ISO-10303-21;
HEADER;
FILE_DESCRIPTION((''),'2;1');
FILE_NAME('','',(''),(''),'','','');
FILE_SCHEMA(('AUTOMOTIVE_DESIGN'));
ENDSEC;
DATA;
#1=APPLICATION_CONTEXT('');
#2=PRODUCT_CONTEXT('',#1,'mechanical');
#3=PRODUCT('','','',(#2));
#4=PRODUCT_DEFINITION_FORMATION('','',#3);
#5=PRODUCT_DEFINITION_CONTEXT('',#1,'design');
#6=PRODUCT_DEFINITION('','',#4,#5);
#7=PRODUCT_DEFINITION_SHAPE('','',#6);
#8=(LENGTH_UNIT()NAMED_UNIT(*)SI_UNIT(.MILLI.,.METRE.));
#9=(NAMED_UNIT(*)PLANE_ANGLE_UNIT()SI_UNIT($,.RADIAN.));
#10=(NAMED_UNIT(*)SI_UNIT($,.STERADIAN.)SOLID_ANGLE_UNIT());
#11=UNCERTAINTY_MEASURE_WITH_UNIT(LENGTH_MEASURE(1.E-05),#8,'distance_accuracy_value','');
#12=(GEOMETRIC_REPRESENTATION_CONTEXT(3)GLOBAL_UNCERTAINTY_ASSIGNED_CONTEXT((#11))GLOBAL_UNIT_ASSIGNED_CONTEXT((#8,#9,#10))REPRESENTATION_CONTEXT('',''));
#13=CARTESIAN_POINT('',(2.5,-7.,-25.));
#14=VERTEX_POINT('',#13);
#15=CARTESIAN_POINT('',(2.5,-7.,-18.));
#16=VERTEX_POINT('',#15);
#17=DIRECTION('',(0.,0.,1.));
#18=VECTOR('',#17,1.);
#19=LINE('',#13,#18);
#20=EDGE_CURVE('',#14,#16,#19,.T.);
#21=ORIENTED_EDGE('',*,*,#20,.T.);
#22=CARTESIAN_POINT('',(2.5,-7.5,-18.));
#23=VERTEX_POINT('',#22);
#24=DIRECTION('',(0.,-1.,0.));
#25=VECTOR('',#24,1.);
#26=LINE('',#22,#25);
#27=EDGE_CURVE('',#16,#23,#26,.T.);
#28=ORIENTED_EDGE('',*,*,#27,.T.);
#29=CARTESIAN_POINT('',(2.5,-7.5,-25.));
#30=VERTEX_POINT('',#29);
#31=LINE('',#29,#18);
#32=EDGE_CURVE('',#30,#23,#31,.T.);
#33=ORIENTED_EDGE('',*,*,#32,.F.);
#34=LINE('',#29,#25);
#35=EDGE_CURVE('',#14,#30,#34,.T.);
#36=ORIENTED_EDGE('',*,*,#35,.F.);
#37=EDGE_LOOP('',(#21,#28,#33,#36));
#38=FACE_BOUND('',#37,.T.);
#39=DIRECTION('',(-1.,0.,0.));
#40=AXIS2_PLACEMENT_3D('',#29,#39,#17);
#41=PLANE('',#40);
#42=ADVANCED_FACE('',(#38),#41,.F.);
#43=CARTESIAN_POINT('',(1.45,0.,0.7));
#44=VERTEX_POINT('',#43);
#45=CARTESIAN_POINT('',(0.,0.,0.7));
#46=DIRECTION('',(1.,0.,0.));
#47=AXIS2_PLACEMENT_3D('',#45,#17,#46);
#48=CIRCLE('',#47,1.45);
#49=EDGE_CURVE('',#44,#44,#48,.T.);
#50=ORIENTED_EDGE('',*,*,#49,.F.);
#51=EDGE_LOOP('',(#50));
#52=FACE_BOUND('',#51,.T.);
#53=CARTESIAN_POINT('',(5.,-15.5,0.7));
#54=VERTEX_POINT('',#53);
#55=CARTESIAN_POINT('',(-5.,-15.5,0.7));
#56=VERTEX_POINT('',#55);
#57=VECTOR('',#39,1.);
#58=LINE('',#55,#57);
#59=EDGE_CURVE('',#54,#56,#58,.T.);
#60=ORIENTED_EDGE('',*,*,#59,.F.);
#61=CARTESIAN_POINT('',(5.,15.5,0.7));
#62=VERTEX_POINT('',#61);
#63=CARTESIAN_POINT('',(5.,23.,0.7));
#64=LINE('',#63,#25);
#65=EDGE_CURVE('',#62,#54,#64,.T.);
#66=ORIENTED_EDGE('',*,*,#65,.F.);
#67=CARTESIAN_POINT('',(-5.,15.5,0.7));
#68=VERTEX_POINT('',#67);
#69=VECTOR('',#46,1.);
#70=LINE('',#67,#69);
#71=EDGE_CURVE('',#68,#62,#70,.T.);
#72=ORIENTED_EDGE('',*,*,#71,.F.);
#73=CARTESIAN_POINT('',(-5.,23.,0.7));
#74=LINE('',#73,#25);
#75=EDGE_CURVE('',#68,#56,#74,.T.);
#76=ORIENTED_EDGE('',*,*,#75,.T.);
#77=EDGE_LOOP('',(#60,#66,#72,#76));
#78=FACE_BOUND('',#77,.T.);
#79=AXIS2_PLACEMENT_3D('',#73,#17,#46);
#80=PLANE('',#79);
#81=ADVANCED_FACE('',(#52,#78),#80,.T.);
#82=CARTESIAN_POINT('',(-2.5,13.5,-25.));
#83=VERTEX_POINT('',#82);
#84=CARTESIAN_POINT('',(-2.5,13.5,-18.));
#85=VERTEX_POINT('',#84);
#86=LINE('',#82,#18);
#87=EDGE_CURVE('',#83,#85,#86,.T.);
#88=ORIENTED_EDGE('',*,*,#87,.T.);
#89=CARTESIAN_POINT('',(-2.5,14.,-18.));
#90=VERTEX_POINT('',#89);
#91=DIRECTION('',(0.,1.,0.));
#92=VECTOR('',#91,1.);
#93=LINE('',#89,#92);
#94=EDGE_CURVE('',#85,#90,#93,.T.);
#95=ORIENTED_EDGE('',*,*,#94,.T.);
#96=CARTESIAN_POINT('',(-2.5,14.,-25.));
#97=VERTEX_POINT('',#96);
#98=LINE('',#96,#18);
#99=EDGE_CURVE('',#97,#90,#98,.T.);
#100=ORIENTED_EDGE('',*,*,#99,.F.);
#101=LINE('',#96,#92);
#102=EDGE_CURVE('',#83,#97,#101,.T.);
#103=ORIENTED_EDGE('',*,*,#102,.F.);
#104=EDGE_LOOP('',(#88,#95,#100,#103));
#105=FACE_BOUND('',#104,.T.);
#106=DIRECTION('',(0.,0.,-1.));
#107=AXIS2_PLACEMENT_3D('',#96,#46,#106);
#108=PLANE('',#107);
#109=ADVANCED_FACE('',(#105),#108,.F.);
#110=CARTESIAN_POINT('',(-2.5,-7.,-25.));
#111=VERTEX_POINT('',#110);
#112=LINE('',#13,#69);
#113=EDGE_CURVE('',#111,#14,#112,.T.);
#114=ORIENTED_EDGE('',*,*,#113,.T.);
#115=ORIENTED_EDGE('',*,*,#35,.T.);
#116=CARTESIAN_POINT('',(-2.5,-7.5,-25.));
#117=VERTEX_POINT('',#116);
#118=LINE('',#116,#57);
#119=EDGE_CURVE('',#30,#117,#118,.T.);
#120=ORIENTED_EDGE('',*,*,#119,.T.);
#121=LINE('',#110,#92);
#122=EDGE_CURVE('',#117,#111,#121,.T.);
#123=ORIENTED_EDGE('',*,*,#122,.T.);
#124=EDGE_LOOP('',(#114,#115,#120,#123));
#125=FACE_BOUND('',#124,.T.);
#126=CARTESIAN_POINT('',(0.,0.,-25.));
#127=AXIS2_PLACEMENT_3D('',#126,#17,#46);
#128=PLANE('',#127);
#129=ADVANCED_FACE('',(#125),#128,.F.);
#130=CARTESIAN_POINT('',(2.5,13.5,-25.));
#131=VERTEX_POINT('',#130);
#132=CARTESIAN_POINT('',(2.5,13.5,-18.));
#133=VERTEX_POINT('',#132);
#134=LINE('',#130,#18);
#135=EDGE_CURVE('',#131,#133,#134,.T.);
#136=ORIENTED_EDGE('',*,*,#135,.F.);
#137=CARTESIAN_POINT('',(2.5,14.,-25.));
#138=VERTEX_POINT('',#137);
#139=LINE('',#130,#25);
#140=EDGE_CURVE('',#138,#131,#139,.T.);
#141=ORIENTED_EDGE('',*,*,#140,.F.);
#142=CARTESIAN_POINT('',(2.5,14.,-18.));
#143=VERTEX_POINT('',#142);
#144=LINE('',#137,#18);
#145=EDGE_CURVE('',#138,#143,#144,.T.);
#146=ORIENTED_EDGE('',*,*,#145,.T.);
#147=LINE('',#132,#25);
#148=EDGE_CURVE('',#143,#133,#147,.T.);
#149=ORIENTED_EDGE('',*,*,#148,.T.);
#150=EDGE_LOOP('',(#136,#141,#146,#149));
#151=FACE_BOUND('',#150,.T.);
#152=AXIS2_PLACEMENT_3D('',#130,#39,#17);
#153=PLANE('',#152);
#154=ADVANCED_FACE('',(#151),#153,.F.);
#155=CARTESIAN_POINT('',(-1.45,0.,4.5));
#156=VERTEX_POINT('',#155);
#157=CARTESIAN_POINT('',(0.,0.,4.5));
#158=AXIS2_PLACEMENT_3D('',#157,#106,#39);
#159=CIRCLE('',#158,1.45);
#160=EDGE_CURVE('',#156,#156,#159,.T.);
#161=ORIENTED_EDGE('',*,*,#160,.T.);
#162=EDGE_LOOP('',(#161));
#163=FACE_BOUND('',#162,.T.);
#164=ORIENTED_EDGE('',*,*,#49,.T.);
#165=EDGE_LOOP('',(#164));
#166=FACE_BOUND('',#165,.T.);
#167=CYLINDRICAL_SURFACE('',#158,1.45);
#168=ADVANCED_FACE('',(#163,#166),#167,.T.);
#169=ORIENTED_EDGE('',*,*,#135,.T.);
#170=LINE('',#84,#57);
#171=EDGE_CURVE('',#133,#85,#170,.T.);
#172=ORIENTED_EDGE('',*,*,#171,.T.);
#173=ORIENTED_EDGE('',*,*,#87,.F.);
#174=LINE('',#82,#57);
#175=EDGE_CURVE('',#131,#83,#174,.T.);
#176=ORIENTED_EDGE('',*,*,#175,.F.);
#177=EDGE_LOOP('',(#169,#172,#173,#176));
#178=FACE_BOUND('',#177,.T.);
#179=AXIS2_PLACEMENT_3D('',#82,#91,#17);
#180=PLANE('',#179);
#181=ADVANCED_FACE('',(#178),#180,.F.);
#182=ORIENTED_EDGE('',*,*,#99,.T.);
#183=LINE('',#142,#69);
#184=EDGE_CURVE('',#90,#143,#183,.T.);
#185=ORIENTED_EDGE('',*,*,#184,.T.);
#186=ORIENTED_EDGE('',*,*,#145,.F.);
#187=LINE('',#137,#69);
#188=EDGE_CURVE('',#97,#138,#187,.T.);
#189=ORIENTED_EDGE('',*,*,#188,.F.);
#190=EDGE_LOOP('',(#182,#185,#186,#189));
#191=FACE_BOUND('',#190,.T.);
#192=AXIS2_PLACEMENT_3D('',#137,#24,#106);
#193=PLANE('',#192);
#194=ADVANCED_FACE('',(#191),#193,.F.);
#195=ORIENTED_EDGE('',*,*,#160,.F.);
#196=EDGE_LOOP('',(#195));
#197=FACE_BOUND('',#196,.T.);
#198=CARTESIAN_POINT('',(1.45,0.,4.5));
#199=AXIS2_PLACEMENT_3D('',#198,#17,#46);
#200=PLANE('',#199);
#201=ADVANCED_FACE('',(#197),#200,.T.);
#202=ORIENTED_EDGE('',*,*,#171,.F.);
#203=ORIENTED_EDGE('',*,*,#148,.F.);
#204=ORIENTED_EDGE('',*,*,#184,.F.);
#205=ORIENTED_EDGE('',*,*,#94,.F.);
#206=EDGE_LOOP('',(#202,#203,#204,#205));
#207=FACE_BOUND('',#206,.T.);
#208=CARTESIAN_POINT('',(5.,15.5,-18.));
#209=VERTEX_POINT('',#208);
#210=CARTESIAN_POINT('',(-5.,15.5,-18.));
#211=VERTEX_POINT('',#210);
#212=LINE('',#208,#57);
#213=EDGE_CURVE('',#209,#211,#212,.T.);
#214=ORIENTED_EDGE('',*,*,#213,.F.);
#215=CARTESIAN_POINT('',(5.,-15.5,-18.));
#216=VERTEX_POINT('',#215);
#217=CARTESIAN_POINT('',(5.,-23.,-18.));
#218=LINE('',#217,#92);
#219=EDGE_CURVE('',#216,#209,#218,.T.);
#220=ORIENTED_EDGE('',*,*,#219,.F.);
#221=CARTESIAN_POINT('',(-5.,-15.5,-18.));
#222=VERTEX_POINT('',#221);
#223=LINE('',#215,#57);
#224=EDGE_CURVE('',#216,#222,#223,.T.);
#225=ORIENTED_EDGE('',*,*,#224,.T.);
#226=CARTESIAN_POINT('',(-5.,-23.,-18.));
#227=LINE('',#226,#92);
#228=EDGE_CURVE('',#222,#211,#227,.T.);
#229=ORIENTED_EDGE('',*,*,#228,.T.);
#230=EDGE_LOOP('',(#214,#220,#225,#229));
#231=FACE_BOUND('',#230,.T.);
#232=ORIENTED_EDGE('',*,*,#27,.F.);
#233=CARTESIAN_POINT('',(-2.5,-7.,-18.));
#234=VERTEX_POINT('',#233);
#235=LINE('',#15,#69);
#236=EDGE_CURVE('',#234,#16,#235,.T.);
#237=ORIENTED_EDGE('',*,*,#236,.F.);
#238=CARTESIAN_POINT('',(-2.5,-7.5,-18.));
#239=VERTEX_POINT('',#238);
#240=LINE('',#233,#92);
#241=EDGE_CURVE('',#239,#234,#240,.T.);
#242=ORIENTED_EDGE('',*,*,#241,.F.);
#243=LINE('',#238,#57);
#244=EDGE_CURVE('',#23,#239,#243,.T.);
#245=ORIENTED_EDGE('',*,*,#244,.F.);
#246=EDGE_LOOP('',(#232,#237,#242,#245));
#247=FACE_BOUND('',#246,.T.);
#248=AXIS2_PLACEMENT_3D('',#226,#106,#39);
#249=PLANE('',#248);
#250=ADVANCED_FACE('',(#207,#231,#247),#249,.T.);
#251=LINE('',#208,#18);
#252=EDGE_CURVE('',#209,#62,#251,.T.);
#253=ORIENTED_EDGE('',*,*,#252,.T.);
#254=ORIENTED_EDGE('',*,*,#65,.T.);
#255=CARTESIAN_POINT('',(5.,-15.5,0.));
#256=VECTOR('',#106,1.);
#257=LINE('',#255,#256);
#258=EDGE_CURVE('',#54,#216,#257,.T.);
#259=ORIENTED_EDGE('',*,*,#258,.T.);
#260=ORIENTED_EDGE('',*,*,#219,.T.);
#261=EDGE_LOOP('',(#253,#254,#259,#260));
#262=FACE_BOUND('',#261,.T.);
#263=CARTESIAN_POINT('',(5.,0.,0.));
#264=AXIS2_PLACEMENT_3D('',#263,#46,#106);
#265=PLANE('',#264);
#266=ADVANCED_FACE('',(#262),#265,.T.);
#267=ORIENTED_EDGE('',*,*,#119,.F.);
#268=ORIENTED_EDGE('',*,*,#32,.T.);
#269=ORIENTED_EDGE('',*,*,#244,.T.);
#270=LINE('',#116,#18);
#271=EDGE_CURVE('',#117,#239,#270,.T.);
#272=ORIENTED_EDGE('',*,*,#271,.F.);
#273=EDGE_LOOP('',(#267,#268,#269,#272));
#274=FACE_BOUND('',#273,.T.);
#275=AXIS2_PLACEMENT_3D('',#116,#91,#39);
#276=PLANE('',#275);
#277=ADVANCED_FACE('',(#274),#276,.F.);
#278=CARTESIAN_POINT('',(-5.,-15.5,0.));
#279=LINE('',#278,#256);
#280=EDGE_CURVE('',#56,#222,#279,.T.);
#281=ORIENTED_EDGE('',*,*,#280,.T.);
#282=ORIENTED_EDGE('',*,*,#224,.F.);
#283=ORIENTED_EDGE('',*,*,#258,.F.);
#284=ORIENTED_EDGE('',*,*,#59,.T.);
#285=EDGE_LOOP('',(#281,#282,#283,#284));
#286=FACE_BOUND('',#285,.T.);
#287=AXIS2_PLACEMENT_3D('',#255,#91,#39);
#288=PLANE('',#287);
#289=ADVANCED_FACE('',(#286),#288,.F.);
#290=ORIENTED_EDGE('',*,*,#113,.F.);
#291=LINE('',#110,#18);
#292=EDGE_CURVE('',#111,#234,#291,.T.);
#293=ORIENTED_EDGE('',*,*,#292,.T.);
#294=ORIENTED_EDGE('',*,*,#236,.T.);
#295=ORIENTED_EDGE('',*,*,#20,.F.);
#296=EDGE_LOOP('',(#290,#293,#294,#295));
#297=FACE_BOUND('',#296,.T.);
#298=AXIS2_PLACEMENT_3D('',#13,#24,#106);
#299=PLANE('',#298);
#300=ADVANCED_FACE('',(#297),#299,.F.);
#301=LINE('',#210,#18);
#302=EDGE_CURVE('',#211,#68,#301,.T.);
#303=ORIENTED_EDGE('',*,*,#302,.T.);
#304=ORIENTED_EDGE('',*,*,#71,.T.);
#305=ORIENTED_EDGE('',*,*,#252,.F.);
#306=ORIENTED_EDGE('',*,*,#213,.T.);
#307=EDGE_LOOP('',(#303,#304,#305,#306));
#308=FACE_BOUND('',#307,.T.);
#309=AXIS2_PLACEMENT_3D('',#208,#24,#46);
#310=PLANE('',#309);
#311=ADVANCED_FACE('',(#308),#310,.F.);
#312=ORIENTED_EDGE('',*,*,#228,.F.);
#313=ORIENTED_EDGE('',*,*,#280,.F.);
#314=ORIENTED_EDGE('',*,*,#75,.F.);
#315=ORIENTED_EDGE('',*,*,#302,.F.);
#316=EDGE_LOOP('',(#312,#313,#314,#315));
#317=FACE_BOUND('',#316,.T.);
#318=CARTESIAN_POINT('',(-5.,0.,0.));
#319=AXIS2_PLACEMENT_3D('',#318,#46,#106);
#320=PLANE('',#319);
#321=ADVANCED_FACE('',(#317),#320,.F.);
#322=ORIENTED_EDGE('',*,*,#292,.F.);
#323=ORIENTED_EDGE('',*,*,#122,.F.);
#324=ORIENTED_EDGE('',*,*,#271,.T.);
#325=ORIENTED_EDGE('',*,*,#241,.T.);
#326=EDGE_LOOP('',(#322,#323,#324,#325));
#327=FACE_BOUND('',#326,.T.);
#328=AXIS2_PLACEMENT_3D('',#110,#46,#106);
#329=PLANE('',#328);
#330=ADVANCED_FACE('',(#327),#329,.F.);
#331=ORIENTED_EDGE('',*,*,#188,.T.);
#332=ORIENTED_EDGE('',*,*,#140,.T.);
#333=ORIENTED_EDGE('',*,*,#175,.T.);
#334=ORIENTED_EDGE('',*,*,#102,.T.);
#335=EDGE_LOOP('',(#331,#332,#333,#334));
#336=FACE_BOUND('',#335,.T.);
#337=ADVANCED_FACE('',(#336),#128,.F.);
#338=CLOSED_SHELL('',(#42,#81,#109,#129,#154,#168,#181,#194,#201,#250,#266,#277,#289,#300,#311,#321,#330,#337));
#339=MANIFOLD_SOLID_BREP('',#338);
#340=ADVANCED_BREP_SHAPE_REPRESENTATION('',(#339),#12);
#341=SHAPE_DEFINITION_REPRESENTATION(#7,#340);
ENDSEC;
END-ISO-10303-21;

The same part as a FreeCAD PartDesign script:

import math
import FreeCAD as App
import Part
import Sketcher

V = App.Vector
Q = App.Units.Quantity


def edges_at(feature, points):
    """Names of the edges that pass closest to the given points."""
    edges = feature.Shape.Edges
    near = lambda p: min(range(len(edges)), key=lambda i: edges[i].distToShape(Part.Vertex(*p))[0])
    return sorted({f"Edge{near(p) + 1}" for p in points})


def add_polygon(sketch, points):
    """Adds a closed chain of lines whose ends are joined by coincident constraints."""
    first, n = sketch.GeometryCount, len(points)
    for a, b in zip(points, points[1:] + points[:1]):
        sketch.addGeometry(Part.LineSegment(App.Vector(*a, 0), App.Vector(*b, 0)), False)
    for i in range(n):
        sketch.addConstraint(Sketcher.Constraint("Coincident", first + i, 2, first + (i + 1) % n, 1))

doc = App.newDocument("Part")
body = doc.addObject("PartDesign::Body", "Body")

# Sketch on YZ plane
sketch1 = body.newObject("Sketcher::SketchObject", "Sketch")
sketch1.AttachmentSupport = (doc.getObject("YZ_Plane"), [""])
sketch1.MapMode = "FlatFace"
sketch1.AttachmentOffset = App.Placement(V(0, 0, 5), App.Rotation())
add_polygon(sketch1, [(23, 1), (-23, 1), (-23, -18), (23, -18)])  # lines 0-3
sketch1.addConstraint([
    Sketcher.Constraint("Horizontal", 0),
    Sketcher.Constraint("Vertical", 1),
    Sketcher.Constraint("Horizontal", 2),
    Sketcher.Constraint("Vertical", 3),
    Sketcher.Constraint("DistanceX", 0, 2, 0, 1, Q("46 mm")),
    Sketcher.Constraint("DistanceY", 1, 2, 1, 1, Q("18.7 mm")),
    Sketcher.Constraint("DistanceX", 0, 2, -1, 1, Q("23 mm")),
    Sketcher.Constraint("DistanceY", 1, 2, -1, 1, Q("18 mm")),
])
pad1 = body.newObject("PartDesign::Pad", "Pad")
pad1.Profile = sketch1
pad1.Length = 10
pad1.Reversed = True

# Sketch on YZ plane
sketch2 = body.newObject("Sketcher::SketchObject", "Sketch001")
sketch2.AttachmentSupport = (doc.getObject("YZ_Plane"), [""])
sketch2.MapMode = "FlatFace"
sketch2.AttachmentOffset = App.Placement(V(0, 0, -5), App.Rotation())
add_polygon(sketch2, [(-16, -18), (-23, -18), (-23, 0), (-16, 0)])  # lines 0-3
sketch2.addConstraint([
    Sketcher.Constraint("Horizontal", 0),
    Sketcher.Constraint("Vertical", 1),
    Sketcher.Constraint("Horizontal", 2),
    Sketcher.Constraint("Vertical", 3),
    Sketcher.Constraint("PointOnObject", 1, 2, -1),
    Sketcher.Constraint("DistanceY", 1, 1, 1, 2, Q("18 mm")),
    Sketcher.Constraint("DistanceX", 0, 2, 0, 1, Q("7.5 mm")),
    Sketcher.Constraint("DistanceX", 0, 2, -1, 1, Q("23 mm")),
])
pocket1 = body.newObject("PartDesign::Pocket", "Pocket")
pocket1.Profile = sketch2
pocket1.Type = "ThroughAll"
pocket1.Reversed = True

# Sketch on YZ plane
sketch3 = body.newObject("Sketcher::SketchObject", "Sketch002")
sketch3.AttachmentSupport = (doc.getObject("YZ_Plane"), [""])
sketch3.MapMode = "FlatFace"
sketch3.AttachmentOffset = App.Placement(V(0, 0, -5), App.Rotation())
add_polygon(sketch3, [(23, -18), (16, -18), (16, 0), (23, 0)])  # lines 0-3
sketch3.addConstraint([
    Sketcher.Constraint("Horizontal", 0),
    Sketcher.Constraint("Vertical", 1),
    Sketcher.Constraint("Horizontal", 2),
    Sketcher.Constraint("Vertical", 3),
    Sketcher.Constraint("PointOnObject", 1, 2, -1),
    Sketcher.Constraint("DistanceY", 1, 1, 1, 2, Q("18 mm")),
    Sketcher.Constraint("DistanceX", 0, 2, 0, 1, Q("7.5 mm")),
    Sketcher.Constraint("DistanceX", -1, 1, 2, 2, Q("23 mm")),
])
pocket2 = body.newObject("PartDesign::Pocket", "Pocket001")
pocket2.Profile = sketch3
pocket2.Type = "ThroughAll"
pocket2.Reversed = True

# Sketch on XY plane
sketch4 = body.newObject("Sketcher::SketchObject", "Sketch003")
sketch4.AttachmentSupport = (doc.getObject("XY_Plane"), [""])
sketch4.MapMode = "FlatFace"
sketch4.AttachmentOffset = App.Placement(V(0, 0, -18), App.Rotation())
add_polygon(sketch4, [(2.5, -7), (2.5, -7.5), (-2.5, -7.5), (-2.5, -7)])  # lines 0-3
sketch4.addConstraint([
    Sketcher.Constraint("Vertical", 0),
    Sketcher.Constraint("Horizontal", 1),
    Sketcher.Constraint("Vertical", 2),
    Sketcher.Constraint("Horizontal", 3),
    Sketcher.Constraint("DistanceX", 1, 2, 1, 1, Q("5 mm")),
    Sketcher.Constraint("DistanceY", 0, 2, 0, 1, Q("0.5 mm")),
    Sketcher.Constraint("DistanceY", 2, 2, -1, 1, Q("7 mm")),
    Sketcher.Constraint("DistanceX", -1, 1, 0, 2, Q("2.5 mm")),
])
pad2 = body.newObject("PartDesign::Pad", "Pad001")
pad2.Profile = sketch4
pad2.Length = 7
pad2.Reversed = True

# Sketch on XY plane
sketch5 = body.newObject("Sketcher::SketchObject", "Sketch004")
sketch5.AttachmentSupport = (doc.getObject("XY_Plane"), [""])
sketch5.MapMode = "FlatFace"
sketch5.AttachmentOffset = App.Placement(V(0, 0, -18), App.Rotation())
add_polygon(sketch5, [(2.5, 14), (2.5, 13.5), (-2.5, 13.5), (-2.5, 14)])  # lines 0-3
sketch5.addConstraint([
    Sketcher.Constraint("Vertical", 0),
    Sketcher.Constraint("Horizontal", 1),
    Sketcher.Constraint("Vertical", 2),
    Sketcher.Constraint("Horizontal", 3),
    Sketcher.Constraint("DistanceX", 1, 2, 1, 1, Q("5 mm")),
    Sketcher.Constraint("DistanceY", 0, 2, 0, 1, Q("0.5 mm")),
    Sketcher.Constraint("DistanceY", -1, 1, 2, 2, Q("14 mm")),
    Sketcher.Constraint("DistanceX", -1, 1, 0, 2, Q("2.5 mm")),
])
pad3 = body.newObject("PartDesign::Pad", "Pad002")
pad3.Profile = sketch5
pad3.Length = 7
pad3.Reversed = True

# Sketch on XZ plane
sketch6 = body.newObject("Sketcher::SketchObject", "Sketch005")
sketch6.AttachmentSupport = (doc.getObject("XZ_Plane"), [""])
sketch6.MapMode = "FlatFace"
add_polygon(sketch6, [(0, 4.5), (0, 0.7), (1.4, 0.7), (1.4, 4.5)])  # lines 0-3
sketch6.addConstraint([
    Sketcher.Constraint("Vertical", 0),
    Sketcher.Constraint("Horizontal", 1),
    Sketcher.Constraint("Vertical", 2),
    Sketcher.Constraint("Horizontal", 3),
    Sketcher.Constraint("PointOnObject", 0, 2, -2),
    Sketcher.Constraint("DistanceY", 0, 2, 0, 1, Q("3.8 mm")),
    Sketcher.Constraint("DistanceX", 1, 1, 1, 2, Q("1.45 mm")),
    Sketcher.Constraint("DistanceY", -1, 1, 0, 2, Q("0.7 mm")),
])
revolution = body.newObject("PartDesign::Revolution", "Revolution")
revolution.Profile = sketch6
revolution.ReferenceAxis = (sketch6, ["V_Axis"])
revolution.Angle = 360

# Sketch on XY plane
sketch7 = body.newObject("Sketcher::SketchObject", "Sketch006")
sketch7.AttachmentSupport = (doc.getObject("XY_Plane"), [""])
sketch7.MapMode = "FlatFace"
sketch7.AttachmentOffset = App.Placement(V(0, 0, 0.7), App.Rotation())
sketch7.addGeometry([
    Part.Circle(V(0, -21, 0), V(0, 0, 1), 1.2),
    Part.Circle(V(0, 21, 0), V(0, 0, 1), 1.2),
], False)
sketch7.addConstraint([
    Sketcher.Constraint("Equal", 0, 1),
    Sketcher.Constraint("Symmetric", 0, 3, 1, 3, -1, 1),
    Sketcher.Constraint("PointOnObject", 0, 3, -2),
    Sketcher.Constraint("Diameter", 0, Q("2.5 mm")),
    Sketcher.Constraint("DistanceY", 0, 3, -1, 1, Q("21 mm")),
])
doc.recompute()
hole = body.newObject("PartDesign::Hole", "Hole")
hole.Profile = sketch7
hole.ThreadType = "None"
hole.Diameter = 2.5
hole.DepthType = "Dimension"
hole.Depth = 25.7
hole.DrillPoint = "Flat"
doc.recompute()

fillet = body.newObject("PartDesign::Fillet", "Fillet")
fillet.Base = (hole, edges_at(hole, [
    (5, 23, 0.35),
    (-5, 23, 0.35),
    (-5, -23, 0.35),
    (5, -23, 0.35),
]))
fillet.Radius = 0.5

# Sketch on XY plane
sketch8 = body.newObject("Sketcher::SketchObject", "Sketch007")
sketch8.AttachmentSupport = (doc.getObject("XY_Plane"), [""])
sketch8.MapMode = "FlatFace"
sketch8.addGeometry([
    Part.LineSegment(V(-4.5, 23, 0), V(4.5, 23, 0)),  # 0
    Part.ArcOfCircle(Part.Circle(V(4.5, 22.5, 0), V(0, 0, 1), 0.5), math.radians(0), math.radians(90)),  # 1
    Part.LineSegment(V(5, 22.5, 0), V(5, 15.5, 0)),  # 2
    Part.LineSegment(V(5, 15.5, 0), V(-5, 15.5, 0)),  # 3
    Part.LineSegment(V(-5, 15.5, 0), V(-5, 22.5, 0)),  # 4
    Part.ArcOfCircle(Part.Circle(V(-4.5, 22.5, 0), V(0, 0, 1), 0.5), math.radians(90), math.radians(180)),  # 5
    Part.LineSegment(V(4.5, -23, 0), V(-4.5, -23, 0)),  # 6
    Part.ArcOfCircle(Part.Circle(V(-4.5, -22.5, 0), V(0, 0, 1), 0.5), math.radians(180), math.radians(270)),  # 7
    Part.LineSegment(V(-5, -22.5, 0), V(-5, -15.5, 0)),  # 8
    Part.LineSegment(V(-5, -15.5, 0), V(5, -15.5, 0)),  # 9
    Part.LineSegment(V(5, -15.5, 0), V(5, -22.5, 0)),  # 10
    Part.ArcOfCircle(Part.Circle(V(4.5, -22.5, 0), V(0, 0, 1), 0.5), math.radians(-90), math.radians(0)),  # 11
], False)
sketch8.addConstraint([
    Sketcher.Constraint("Tangent", 0, 2, 1, 2),
    Sketcher.Constraint("Tangent", 1, 1, 2, 1),
    Sketcher.Constraint("Coincident", 2, 2, 3, 1),
    Sketcher.Constraint("Coincident", 3, 2, 4, 1),
    Sketcher.Constraint("Tangent", 4, 2, 5, 2),
    Sketcher.Constraint("Tangent", 5, 1, 0, 1),
    Sketcher.Constraint("Tangent", 6, 2, 7, 2),
    Sketcher.Constraint("Tangent", 7, 1, 8, 1),
    Sketcher.Constraint("Coincident", 8, 2, 9, 1),
    Sketcher.Constraint("Coincident", 9, 2, 10, 1),
    Sketcher.Constraint("Tangent", 10, 2, 11, 2),
    Sketcher.Constraint("Tangent", 11, 1, 6, 1),
    Sketcher.Constraint("Horizontal", 0),
    Sketcher.Constraint("Vertical", 2),
    Sketcher.Constraint("Horizontal", 3),
    Sketcher.Constraint("Vertical", 4),
    Sketcher.Constraint("Horizontal", 6),
    Sketcher.Constraint("Vertical", 8),
    Sketcher.Constraint("Horizontal", 9),
    Sketcher.Constraint("Vertical", 10),
    Sketcher.Constraint("Equal", 1, 5),
    Sketcher.Constraint("Equal", 5, 7),
    Sketcher.Constraint("Equal", 7, 11),
    Sketcher.Constraint("Symmetric", 1, 3, 7, 3, -1, 1),
    Sketcher.Constraint("Symmetric", 3, 2, 9, 2, -1, 1),
    Sketcher.Constraint("Vertical", 5, 3, 7, 3),
    Sketcher.Constraint("Radius", 1, Q("0.5 mm")),
    Sketcher.Constraint("DistanceX", 0, 1, 0, 2, Q("9 mm")),
    Sketcher.Constraint("DistanceY", 2, 2, 2, 1, Q("7 mm")),
    Sketcher.Constraint("DistanceY", -1, 1, 0, 2, Q("23 mm")),
])
pocket3 = body.newObject("PartDesign::Pocket", "Pocket002")
pocket3.Profile = sketch8
pocket3.Type = "ThroughAll"
pocket3.Midplane = True

doc.recompute()
